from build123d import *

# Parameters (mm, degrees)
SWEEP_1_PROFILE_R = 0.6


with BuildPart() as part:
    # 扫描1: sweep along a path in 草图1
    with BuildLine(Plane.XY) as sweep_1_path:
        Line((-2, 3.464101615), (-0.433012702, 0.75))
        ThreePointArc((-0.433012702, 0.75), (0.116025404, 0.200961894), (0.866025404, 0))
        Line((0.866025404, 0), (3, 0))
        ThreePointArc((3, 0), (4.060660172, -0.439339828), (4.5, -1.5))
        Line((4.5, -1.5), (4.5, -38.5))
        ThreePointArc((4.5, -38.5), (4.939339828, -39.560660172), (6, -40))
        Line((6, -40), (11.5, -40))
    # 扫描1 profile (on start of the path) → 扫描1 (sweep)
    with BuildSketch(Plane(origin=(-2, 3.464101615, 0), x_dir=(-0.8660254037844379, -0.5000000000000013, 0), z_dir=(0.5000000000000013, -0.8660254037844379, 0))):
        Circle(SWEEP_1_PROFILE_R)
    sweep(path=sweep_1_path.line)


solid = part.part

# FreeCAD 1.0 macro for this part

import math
import FreeCAD as App
import Part
import Sketcher

V = App.Vector
Q = App.Units.Quantity

doc = App.newDocument("Part")
body = doc.addObject("PartDesign::Body", "Body")

sketch1 = body.newObject("Sketcher::SketchObject", "Sketch")
sketch1.Placement = App.Placement(V(-2, 3.464102, 0), App.Rotation(V(-0.866025404, -0.5, 0), V(0, 0, -1), V(0.5, -0.866025404, 0), "ZXY"))
sketch1.addGeometry(Part.Circle(V(0, 0, 0), V(0, 0, 1), 0.6), False)
sketch1.addConstraint([
    Sketcher.Constraint("Coincident", 0, 3, -1, 1),
    Sketcher.Constraint("Diameter", 0, 1.2),
])

sketch2 = body.newObject("Sketcher::SketchObject", "Sketch001")
sketch2.AttachmentSupport = (doc.getObject("XY_Plane"), [""])
sketch2.MapMode = "FlatFace"
sketch2.addGeometry([
    Part.LineSegment(V(-2, 3.5, 0), V(-0.4, 0.8, 0)),
    Part.ArcOfCircle(Part.Circle(V(0.9, 1.5, 0), V(0, 0, 1), 1.5), math.radians(-150), math.radians(-90)),
    Part.LineSegment(V(0.9, 0, 0), V(3, 0, 0)),
    Part.ArcOfCircle(Part.Circle(V(3, -1.5, 0), V(0, 0, 1), 1.5), math.radians(0), math.radians(90)),
    Part.LineSegment(V(4.5, -1.5, 0), V(4.5, -38.5, 0)),
    Part.ArcOfCircle(Part.Circle(V(6, -38.5, 0), V(0, 0, 1), 1.5), math.radians(180), math.radians(270)),
    Part.LineSegment(V(6, -40, 0), V(11.5, -40, 0)),
], False)
sketch2.addConstraint([
    Sketcher.Constraint("Tangent", 0, 2, 1, 1),
    Sketcher.Constraint("Tangent", 1, 2, 2, 1),
    Sketcher.Constraint("Tangent", 2, 2, 3, 2),
    Sketcher.Constraint("Tangent", 3, 1, 4, 1),
    Sketcher.Constraint("Tangent", 4, 2, 5, 1),
    Sketcher.Constraint("Tangent", 5, 2, 6, 1),
    Sketcher.Constraint("Horizontal", 2),
    Sketcher.Constraint("Vertical", 4),
    Sketcher.Constraint("Horizontal", 6),
    Sketcher.Constraint("Equal", 1, 3),
    Sketcher.Constraint("Equal", 3, 5),
    Sketcher.Constraint("PointOnObject", 1, 2, -1),
    Sketcher.Constraint("Radius", 1, 1.5),
    Sketcher.Constraint("DistanceY", 4, 2, 4, 1, 37.0),
    Sketcher.Constraint("Angle", 0, Q("-60 deg")),
    Sketcher.Constraint("DistanceX", 6, 1, 6, 2, 5.5),
    Sketcher.Constraint("DistanceX", -1, 1, 3, 3, 3.0),
    Sketcher.Constraint("DistanceX", 0, 1, -1, 1, 2.0),
    Sketcher.Constraint("DistanceY", -1, 1, 0, 1, 3.464102),
])
doc.recompute()

additivepipe = body.newObject("PartDesign::AdditivePipe", "AdditivePipe")
additivepipe.Profile = sketch1
additivepipe.Spine = (sketch2, ["Edge1", "Edge2", "Edge3", "Edge4", "Edge5", "Edge6", "Edge7"])

doc.recompute()
